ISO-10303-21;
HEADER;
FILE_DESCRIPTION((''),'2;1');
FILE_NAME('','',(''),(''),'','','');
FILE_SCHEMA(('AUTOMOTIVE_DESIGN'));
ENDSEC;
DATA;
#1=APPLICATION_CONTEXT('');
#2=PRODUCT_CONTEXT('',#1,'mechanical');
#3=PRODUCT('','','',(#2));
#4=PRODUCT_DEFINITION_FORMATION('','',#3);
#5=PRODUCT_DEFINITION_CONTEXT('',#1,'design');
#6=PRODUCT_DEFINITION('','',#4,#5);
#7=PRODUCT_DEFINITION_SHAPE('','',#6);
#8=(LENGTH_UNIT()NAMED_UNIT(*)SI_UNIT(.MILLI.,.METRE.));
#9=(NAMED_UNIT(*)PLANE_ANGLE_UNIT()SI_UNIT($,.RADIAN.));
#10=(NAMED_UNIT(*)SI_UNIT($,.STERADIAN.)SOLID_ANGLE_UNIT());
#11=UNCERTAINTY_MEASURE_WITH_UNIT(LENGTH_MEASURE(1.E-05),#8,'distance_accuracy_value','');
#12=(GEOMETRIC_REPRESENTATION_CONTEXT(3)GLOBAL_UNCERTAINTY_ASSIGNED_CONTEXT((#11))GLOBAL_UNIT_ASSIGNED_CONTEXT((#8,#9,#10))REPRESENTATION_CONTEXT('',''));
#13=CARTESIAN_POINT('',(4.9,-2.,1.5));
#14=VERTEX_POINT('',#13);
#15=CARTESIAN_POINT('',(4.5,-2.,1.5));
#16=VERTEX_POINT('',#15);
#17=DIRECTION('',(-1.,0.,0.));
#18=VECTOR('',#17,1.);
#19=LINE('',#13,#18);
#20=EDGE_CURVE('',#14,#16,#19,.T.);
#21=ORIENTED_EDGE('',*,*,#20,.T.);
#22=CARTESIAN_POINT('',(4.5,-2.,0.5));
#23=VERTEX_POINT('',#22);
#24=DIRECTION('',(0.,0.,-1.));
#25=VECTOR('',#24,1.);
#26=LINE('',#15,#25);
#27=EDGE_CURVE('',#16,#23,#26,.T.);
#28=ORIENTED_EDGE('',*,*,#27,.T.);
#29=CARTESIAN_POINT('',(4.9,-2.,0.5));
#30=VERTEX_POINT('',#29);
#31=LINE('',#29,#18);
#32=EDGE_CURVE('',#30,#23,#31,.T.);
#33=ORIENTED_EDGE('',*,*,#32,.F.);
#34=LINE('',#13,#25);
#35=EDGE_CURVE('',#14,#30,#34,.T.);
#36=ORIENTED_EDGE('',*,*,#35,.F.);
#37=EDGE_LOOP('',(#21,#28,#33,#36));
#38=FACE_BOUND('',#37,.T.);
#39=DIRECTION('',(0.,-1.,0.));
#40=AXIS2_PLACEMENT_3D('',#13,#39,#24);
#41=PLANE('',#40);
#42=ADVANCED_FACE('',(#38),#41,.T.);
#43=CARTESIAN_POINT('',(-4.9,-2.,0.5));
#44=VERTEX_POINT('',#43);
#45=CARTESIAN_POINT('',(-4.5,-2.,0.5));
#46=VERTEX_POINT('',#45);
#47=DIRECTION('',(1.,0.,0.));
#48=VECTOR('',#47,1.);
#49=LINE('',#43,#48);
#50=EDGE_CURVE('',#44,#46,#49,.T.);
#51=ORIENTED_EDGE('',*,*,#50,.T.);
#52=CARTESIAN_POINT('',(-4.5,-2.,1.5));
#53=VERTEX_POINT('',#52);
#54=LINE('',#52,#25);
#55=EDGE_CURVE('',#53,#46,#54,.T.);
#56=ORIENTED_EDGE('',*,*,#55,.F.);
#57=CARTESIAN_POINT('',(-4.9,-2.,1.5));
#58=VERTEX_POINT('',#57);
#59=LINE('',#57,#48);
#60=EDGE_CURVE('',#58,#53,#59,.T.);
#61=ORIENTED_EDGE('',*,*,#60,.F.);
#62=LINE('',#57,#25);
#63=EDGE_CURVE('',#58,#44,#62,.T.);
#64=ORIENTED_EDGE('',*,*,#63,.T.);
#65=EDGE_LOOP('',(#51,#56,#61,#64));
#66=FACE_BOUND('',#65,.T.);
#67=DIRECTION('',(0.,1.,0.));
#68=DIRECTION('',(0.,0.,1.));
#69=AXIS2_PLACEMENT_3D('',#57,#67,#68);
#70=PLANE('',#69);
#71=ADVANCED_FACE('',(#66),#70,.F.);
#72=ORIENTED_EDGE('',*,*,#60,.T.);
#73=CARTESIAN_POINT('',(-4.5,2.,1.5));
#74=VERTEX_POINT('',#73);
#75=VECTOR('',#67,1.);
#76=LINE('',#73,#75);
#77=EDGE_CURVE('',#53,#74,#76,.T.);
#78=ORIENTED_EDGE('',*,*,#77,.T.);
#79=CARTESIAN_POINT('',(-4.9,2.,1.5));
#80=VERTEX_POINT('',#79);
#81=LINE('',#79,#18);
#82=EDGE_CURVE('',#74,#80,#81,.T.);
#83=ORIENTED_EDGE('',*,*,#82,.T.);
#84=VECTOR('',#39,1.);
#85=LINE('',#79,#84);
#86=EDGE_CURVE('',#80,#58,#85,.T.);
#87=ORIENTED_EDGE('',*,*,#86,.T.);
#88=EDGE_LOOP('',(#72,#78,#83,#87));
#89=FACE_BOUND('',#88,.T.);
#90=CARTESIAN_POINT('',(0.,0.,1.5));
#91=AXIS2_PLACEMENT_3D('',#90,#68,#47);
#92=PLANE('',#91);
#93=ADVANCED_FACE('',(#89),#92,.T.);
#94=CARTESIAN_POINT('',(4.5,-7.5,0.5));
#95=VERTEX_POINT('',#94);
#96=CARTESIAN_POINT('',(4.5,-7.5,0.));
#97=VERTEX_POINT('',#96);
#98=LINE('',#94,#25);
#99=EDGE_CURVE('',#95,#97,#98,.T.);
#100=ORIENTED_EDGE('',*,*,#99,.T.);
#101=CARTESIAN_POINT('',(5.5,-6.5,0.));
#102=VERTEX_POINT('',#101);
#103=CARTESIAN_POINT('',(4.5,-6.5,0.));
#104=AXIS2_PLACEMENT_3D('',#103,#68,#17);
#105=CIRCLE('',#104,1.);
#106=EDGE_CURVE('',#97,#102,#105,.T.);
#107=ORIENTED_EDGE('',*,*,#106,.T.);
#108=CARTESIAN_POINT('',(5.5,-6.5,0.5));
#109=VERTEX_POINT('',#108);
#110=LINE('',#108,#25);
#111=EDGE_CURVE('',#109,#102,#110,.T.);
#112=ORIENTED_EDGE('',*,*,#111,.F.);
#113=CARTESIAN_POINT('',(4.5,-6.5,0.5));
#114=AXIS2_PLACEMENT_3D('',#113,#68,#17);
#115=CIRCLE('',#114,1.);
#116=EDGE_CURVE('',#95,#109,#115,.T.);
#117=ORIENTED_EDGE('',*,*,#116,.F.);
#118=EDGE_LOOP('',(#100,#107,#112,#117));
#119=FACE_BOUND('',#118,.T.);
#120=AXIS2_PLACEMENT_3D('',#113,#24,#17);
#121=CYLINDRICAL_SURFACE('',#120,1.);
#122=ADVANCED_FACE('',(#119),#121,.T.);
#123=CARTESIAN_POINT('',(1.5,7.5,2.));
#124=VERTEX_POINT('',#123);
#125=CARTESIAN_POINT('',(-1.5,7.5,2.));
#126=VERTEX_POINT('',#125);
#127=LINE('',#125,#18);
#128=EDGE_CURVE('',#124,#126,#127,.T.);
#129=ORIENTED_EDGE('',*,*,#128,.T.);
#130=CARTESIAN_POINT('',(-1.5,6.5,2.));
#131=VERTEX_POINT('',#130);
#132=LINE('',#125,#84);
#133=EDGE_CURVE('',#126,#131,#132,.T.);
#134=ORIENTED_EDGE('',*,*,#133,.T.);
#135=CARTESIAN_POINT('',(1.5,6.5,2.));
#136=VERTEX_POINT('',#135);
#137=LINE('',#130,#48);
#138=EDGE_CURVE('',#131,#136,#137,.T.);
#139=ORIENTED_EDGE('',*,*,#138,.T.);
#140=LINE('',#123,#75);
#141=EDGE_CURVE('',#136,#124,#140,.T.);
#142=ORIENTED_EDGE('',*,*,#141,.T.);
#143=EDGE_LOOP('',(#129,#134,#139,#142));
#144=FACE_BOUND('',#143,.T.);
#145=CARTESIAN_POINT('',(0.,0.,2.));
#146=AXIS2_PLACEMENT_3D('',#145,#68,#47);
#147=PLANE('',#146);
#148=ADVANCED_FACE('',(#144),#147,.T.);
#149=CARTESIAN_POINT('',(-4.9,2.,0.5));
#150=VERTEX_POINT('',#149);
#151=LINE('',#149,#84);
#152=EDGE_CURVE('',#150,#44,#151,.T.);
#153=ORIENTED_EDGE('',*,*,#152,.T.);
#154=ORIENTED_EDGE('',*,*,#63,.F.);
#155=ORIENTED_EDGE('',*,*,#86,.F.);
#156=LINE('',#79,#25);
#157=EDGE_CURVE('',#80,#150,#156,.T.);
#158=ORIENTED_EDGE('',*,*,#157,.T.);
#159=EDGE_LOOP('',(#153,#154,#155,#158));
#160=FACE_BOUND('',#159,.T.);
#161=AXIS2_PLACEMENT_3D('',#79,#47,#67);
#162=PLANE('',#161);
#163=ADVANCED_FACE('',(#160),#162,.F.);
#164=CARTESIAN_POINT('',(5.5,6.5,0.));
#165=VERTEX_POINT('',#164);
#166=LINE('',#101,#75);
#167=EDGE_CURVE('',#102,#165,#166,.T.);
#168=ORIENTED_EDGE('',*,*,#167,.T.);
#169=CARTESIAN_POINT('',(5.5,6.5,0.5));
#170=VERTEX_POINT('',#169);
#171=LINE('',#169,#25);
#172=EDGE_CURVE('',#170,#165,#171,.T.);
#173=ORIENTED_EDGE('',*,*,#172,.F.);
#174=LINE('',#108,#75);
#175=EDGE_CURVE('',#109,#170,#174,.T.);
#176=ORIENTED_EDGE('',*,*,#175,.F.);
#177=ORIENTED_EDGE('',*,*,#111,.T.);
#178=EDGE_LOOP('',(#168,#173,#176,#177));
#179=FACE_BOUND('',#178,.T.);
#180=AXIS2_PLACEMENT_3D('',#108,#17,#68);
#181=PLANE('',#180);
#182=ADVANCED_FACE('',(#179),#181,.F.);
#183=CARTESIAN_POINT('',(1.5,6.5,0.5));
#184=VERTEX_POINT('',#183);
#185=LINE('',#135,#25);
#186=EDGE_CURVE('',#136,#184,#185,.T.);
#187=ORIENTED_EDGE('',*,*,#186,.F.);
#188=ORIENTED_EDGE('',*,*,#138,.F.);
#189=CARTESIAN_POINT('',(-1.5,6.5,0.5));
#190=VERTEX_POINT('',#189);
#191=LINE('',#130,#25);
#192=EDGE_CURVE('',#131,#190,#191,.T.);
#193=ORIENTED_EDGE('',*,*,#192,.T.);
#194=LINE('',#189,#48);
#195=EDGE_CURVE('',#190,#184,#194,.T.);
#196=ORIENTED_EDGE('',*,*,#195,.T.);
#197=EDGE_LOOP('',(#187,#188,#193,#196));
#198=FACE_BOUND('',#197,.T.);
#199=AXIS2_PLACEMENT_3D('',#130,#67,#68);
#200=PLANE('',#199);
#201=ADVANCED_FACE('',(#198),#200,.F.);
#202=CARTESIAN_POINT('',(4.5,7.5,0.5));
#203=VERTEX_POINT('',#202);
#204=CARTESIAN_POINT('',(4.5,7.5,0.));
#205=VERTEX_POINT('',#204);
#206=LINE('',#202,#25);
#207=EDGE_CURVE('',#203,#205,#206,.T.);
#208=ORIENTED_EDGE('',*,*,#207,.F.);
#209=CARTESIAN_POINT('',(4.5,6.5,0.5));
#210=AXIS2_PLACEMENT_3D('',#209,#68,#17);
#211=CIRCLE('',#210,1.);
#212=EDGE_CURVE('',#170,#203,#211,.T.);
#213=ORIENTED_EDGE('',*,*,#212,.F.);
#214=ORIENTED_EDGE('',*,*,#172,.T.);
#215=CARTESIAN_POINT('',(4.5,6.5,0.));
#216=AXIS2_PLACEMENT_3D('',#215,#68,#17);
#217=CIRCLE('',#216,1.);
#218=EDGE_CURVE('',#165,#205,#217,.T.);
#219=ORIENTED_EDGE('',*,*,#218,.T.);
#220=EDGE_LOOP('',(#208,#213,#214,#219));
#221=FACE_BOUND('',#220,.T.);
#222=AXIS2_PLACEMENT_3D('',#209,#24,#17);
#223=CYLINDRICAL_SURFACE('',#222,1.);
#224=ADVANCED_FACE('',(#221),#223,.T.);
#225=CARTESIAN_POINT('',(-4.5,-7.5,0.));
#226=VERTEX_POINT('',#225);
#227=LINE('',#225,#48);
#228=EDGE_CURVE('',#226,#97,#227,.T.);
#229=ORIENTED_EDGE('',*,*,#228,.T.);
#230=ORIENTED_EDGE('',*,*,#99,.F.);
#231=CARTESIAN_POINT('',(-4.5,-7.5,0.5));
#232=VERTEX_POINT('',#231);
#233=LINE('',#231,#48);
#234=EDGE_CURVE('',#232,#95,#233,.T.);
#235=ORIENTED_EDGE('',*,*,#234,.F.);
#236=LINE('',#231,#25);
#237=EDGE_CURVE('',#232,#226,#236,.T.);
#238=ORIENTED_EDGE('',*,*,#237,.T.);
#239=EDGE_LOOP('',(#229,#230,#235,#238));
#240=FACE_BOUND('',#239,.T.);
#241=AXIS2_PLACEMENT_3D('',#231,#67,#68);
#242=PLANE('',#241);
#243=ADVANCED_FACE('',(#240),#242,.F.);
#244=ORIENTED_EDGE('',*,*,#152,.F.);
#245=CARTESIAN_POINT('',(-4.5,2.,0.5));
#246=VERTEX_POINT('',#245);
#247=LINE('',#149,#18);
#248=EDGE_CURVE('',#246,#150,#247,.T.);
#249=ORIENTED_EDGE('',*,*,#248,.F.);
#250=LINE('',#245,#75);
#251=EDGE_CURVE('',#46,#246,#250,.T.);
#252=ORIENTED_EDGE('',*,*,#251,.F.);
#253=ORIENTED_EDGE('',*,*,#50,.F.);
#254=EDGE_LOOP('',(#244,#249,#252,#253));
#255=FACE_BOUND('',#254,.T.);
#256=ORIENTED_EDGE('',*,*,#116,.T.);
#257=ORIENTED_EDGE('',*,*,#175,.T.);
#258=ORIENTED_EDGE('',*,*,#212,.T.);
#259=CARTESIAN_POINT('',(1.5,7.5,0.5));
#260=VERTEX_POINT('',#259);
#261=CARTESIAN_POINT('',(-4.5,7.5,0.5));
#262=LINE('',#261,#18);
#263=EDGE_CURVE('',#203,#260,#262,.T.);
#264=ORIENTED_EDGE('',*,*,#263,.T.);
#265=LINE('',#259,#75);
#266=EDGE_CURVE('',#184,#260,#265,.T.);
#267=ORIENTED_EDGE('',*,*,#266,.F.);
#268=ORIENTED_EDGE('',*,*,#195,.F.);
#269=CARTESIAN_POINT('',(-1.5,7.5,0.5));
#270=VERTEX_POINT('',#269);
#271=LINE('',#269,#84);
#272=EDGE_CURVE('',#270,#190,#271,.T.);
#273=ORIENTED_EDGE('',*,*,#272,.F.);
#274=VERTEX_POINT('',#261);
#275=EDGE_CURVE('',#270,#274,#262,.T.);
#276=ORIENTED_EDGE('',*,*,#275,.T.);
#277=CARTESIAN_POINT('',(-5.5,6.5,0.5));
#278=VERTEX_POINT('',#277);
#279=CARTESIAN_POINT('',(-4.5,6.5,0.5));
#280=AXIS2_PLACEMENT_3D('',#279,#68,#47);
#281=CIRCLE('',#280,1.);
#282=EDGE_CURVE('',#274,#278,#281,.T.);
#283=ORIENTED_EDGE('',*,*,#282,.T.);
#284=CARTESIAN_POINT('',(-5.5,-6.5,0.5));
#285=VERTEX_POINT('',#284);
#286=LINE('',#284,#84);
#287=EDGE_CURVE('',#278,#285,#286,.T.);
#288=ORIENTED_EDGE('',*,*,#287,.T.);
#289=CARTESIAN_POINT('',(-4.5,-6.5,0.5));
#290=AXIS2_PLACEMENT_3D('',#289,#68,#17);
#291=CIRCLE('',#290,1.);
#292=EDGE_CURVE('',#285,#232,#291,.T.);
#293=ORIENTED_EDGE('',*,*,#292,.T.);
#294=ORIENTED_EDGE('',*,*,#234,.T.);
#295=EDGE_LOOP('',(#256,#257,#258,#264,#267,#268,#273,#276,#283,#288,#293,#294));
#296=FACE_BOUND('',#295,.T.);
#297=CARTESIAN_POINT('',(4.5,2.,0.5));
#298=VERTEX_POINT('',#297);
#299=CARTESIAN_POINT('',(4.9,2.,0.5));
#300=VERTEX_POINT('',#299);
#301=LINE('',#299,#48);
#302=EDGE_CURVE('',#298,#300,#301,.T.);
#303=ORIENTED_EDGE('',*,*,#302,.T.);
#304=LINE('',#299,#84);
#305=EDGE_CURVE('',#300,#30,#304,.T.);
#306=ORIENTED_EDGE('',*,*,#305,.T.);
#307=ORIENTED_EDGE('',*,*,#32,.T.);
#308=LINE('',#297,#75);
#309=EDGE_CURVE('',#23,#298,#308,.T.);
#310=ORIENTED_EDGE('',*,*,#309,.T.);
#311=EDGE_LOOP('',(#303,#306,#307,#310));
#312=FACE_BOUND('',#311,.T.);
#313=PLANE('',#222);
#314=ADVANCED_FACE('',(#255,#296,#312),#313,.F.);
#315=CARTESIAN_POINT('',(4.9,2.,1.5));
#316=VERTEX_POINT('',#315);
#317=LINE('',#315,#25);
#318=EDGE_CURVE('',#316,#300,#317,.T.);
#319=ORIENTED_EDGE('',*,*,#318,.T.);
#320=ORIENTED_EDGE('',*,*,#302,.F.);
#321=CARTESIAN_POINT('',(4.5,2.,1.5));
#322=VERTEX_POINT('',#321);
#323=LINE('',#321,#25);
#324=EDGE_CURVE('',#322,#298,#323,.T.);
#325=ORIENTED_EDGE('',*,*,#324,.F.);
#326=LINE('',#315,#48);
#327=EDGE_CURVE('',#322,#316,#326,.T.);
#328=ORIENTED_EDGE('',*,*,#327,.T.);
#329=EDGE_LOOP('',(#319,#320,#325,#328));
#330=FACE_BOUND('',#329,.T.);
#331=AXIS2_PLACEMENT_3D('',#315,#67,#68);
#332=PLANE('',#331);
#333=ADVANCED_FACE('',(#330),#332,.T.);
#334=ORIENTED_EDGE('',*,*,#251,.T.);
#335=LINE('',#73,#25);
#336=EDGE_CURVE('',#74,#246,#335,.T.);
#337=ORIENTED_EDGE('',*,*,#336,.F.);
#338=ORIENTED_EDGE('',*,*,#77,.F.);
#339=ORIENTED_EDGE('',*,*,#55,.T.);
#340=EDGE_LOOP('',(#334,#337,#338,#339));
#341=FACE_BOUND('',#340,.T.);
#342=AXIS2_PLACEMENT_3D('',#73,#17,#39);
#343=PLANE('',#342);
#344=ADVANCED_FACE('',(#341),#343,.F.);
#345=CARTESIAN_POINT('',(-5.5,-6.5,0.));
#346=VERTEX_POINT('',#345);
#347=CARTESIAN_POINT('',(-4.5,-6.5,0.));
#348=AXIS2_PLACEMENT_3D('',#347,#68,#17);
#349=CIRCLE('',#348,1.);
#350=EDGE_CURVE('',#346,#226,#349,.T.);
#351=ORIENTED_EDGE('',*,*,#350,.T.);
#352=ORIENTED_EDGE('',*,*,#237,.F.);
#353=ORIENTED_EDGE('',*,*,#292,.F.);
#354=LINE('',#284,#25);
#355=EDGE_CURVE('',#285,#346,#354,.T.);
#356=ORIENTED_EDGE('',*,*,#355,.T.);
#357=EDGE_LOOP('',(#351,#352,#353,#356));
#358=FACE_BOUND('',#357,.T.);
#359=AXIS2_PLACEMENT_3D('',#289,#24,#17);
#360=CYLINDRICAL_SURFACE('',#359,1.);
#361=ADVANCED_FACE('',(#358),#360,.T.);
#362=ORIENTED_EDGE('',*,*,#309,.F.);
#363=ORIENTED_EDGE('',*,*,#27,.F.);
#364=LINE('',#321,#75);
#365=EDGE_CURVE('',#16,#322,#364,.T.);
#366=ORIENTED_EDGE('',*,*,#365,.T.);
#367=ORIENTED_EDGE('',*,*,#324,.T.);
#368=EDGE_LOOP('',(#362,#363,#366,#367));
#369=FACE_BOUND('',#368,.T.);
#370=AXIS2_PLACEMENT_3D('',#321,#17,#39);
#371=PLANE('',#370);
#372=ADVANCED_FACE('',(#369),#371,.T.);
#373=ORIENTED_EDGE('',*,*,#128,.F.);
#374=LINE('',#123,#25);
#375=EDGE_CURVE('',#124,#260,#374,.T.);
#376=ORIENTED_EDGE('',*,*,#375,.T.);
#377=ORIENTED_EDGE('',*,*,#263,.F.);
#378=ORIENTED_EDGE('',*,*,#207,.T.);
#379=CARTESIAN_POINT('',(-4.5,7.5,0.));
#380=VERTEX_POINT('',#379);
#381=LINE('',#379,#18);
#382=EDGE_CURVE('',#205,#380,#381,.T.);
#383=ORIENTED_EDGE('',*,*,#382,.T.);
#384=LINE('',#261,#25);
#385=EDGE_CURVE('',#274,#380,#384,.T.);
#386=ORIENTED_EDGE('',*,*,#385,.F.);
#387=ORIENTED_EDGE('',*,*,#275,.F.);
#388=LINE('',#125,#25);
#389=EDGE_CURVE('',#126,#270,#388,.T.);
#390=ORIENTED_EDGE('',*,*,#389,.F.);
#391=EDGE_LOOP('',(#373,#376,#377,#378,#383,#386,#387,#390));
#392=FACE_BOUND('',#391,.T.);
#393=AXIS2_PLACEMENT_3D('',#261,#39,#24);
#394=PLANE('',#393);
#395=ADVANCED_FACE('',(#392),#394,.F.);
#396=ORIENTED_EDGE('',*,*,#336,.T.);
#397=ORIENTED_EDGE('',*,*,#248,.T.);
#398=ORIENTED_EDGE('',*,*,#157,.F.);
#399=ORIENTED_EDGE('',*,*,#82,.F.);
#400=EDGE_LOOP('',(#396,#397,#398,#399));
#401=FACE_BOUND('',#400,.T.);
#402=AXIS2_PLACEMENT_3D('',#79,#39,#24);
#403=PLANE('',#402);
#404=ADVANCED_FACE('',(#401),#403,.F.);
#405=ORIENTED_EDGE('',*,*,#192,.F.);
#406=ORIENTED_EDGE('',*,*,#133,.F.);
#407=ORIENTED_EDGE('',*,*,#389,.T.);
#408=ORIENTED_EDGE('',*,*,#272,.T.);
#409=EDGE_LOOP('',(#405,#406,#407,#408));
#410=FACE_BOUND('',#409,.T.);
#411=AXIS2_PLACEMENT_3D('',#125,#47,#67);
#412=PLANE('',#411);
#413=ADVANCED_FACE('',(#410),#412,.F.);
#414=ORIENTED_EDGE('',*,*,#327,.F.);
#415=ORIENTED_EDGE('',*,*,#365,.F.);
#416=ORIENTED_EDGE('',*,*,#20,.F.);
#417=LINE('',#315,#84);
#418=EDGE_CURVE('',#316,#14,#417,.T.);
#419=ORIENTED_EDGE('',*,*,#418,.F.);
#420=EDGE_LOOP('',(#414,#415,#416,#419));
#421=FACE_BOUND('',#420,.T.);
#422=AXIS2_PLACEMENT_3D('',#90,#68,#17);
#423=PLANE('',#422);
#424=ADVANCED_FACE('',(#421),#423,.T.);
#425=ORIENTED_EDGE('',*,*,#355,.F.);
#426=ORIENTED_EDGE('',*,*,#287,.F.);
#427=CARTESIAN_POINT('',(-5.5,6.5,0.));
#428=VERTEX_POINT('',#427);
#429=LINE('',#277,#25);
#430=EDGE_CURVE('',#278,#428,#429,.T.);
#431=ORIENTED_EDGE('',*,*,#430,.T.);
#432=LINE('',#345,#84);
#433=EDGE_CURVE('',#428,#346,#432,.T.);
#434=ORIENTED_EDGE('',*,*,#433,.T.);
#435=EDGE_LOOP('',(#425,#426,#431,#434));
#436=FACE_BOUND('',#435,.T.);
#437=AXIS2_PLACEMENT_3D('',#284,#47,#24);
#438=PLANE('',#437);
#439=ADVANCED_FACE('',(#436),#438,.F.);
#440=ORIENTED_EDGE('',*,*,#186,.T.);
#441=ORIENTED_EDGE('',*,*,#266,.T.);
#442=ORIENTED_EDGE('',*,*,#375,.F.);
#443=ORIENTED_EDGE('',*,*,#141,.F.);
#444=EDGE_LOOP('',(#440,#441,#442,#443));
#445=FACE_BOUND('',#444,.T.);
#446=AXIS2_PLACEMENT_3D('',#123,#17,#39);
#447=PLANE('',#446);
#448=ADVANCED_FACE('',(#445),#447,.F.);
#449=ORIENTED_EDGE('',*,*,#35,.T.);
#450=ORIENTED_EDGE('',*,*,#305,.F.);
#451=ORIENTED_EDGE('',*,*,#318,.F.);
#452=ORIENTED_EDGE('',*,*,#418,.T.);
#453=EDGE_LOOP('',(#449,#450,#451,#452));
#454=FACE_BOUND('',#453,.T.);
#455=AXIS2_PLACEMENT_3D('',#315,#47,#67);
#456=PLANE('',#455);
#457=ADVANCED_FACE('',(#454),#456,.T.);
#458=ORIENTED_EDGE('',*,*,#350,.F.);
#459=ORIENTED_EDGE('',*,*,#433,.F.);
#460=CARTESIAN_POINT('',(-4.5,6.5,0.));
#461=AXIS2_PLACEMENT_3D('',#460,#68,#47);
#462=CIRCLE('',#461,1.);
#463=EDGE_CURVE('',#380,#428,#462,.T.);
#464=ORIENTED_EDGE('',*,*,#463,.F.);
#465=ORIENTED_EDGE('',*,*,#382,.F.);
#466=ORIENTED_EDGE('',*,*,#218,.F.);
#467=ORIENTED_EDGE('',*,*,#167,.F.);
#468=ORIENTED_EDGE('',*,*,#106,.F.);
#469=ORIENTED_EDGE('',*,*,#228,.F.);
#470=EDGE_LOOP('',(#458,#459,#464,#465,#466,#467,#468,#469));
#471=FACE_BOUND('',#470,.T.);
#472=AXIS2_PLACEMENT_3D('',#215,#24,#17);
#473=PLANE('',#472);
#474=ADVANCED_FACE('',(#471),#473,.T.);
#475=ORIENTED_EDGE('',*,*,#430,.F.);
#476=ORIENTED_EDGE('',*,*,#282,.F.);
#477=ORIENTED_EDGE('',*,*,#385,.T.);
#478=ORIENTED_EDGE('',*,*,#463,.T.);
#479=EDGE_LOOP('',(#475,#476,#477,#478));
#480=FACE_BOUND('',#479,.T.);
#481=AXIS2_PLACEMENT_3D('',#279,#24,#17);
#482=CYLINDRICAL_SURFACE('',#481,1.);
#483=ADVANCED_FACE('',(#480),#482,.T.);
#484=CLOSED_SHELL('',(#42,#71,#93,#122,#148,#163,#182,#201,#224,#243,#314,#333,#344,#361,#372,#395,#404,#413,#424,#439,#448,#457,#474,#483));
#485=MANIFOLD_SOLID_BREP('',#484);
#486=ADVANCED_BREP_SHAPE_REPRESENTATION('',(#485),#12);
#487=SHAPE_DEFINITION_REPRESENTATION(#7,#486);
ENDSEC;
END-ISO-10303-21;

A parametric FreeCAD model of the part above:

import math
import FreeCAD as App
import Part
import Sketcher
from FreeCAD import Vector


def add_polygon(sketch, points):
    """Adds a closed chain of lines whose ends are joined by coincident constraints."""
    first, n = sketch.GeometryCount, len(points)
    for a, b in zip(points, points[1:] + points[:1]):
        sketch.addGeometry(Part.LineSegment(App.Vector(*a, 0), App.Vector(*b, 0)), False)
    for i in range(n):
        sketch.addConstraint(Sketcher.Constraint("Coincident", first + i, 2, first + (i + 1) % n, 1))

doc = App.newDocument("Part")
body = doc.addObject("PartDesign::Body", "Body")

sketch1 = body.newObject("Sketcher::SketchObject", "Sketch")
sketch1.AttachmentSupport = (doc.getObject("XY_Plane"), [""])
sketch1.MapMode = "FlatFace"
sketch1.addGeometry([
    Part.LineSegment(Vector(-4.5, -7.5, 0), Vector(4.5, -7.5, 0)),
    Part.ArcOfCircle(Part.Circle(Vector(4.5, -6.5, 0), Vector(0, 0, 1), 1), math.radians(-90), math.radians(0)),
    Part.LineSegment(Vector(5.5, -6.5, 0), Vector(5.5, 6.5, 0)),
    Part.ArcOfCircle(Part.Circle(Vector(4.5, 6.5, 0), Vector(0, 0, 1), 1), math.radians(0), math.radians(90)),
    Part.LineSegment(Vector(4.5, 7.5, 0), Vector(-4.5, 7.5, 0)),
    Part.ArcOfCircle(Part.Circle(Vector(-4.5, 6.5, 0), Vector(0, 0, 1), 1), math.radians(90), math.radians(180)),
    Part.LineSegment(Vector(-5.5, 6.5, 0), Vector(-5.5, -6.5, 0)),
    Part.ArcOfCircle(Part.Circle(Vector(-4.5, -6.5, 0), Vector(0, 0, 1), 1), math.radians(-180), math.radians(-90)),
], False)
sketch1.addConstraint([
    Sketcher.Constraint("Tangent", 0, 2, 1, 1),
    Sketcher.Constraint("Tangent", 1, 2, 2, 1),
    Sketcher.Constraint("Tangent", 2, 2, 3, 1),
    Sketcher.Constraint("Tangent", 3, 2, 4, 1),
    Sketcher.Constraint("Tangent", 4, 2, 5, 1),
    Sketcher.Constraint("Tangent", 5, 2, 6, 1),
    Sketcher.Constraint("Tangent", 6, 2, 7, 1),
    Sketcher.Constraint("Tangent", 7, 2, 0, 1),
    Sketcher.Constraint("Horizontal", 0),
    Sketcher.Constraint("Vertical", 2),
    Sketcher.Constraint("Horizontal", 4),
    Sketcher.Constraint("Vertical", 6),
    Sketcher.Constraint("Equal", 1, 3),
    Sketcher.Constraint("Equal", 3, 5),
    Sketcher.Constraint("Equal", 5, 7),
    Sketcher.Constraint("Symmetric", 1, 3, 5, 3, -1, 1),
    Sketcher.Constraint("Radius", 1, 1.0),
    Sketcher.Constraint("DistanceX", 0, 1, 0, 2, 9.0),
    Sketcher.Constraint("DistanceY", 2, 1, 2, 2, 13.0),
])
pad1 = body.newObject("PartDesign::Pad", "Pad")
pad1.Profile = sketch1
pad1.Length = 0.5

sketch2 = body.newObject("Sketcher::SketchObject", "Sketch001")
sketch2.AttachmentSupport = (doc.getObject("XY_Plane"), [""])
sketch2.MapMode = "FlatFace"
sketch2.AttachmentOffset = App.Placement(Vector(0, 0, 0.5), App.Rotation())
add_polygon(sketch2, [(-1.5, 7.5), (-1.5, 6.5), (1.5, 6.5), (1.5, 7.5)])
sketch2.addConstraint([
    Sketcher.Constraint("Vertical", 0),
    Sketcher.Constraint("Horizontal", 1),
    Sketcher.Constraint("Vertical", 2),
    Sketcher.Constraint("Horizontal", 3),
    Sketcher.Constraint("DistanceX", 1, 1, 1, 2, 3.0),
    Sketcher.Constraint("DistanceY", 0, 2, 0, 1, 1.0),
    Sketcher.Constraint("DistanceX", 0, 2, -1, 1, 1.5),
    Sketcher.Constraint("DistanceY", -1, 1, 0, 2, 6.5),
])
pad2 = body.newObject("PartDesign::Pad", "Pad001")
pad2.Profile = sketch2
pad2.Length = 1.5

sketch3 = body.newObject("Sketcher::SketchObject", "Sketch002")
sketch3.AttachmentSupport = (doc.getObject("XY_Plane"), [""])
sketch3.MapMode = "FlatFace"
sketch3.AttachmentOffset = App.Placement(Vector(0, 0, 0.5), App.Rotation())
add_polygon(sketch3, [(-4.9, 2), (-4.9, -2), (-4.5, -2), (-4.5, 2)])
sketch3.addConstraint([
    Sketcher.Constraint("Vertical", 0),
    Sketcher.Constraint("Horizontal", 1),
    Sketcher.Constraint("Vertical", 2),
    Sketcher.Constraint("Horizontal", 3),
    Sketcher.Constraint("DistanceY", 0, 2, 0, 1, 4.0),
    Sketcher.Constraint("DistanceX", 1, 1, 1, 2, 0.4),
    Sketcher.Constraint("DistanceY", 0, 2, -1, 1, 2.0),
    Sketcher.Constraint("DistanceX", 0, 2, -1, 1, 4.9),
])
pad3 = body.newObject("PartDesign::Pad", "Pad002")
pad3.Profile = sketch3
pad3.Length = 1
doc.recompute()

mirrored = body.newObject("PartDesign::Mirrored", "Mirrored")
mirrored.Originals = [pad3]
mirrored.MirrorPlane = (doc.getObject("YZ_Plane"), [""])
body.Tip = mirrored

doc.recompute()
